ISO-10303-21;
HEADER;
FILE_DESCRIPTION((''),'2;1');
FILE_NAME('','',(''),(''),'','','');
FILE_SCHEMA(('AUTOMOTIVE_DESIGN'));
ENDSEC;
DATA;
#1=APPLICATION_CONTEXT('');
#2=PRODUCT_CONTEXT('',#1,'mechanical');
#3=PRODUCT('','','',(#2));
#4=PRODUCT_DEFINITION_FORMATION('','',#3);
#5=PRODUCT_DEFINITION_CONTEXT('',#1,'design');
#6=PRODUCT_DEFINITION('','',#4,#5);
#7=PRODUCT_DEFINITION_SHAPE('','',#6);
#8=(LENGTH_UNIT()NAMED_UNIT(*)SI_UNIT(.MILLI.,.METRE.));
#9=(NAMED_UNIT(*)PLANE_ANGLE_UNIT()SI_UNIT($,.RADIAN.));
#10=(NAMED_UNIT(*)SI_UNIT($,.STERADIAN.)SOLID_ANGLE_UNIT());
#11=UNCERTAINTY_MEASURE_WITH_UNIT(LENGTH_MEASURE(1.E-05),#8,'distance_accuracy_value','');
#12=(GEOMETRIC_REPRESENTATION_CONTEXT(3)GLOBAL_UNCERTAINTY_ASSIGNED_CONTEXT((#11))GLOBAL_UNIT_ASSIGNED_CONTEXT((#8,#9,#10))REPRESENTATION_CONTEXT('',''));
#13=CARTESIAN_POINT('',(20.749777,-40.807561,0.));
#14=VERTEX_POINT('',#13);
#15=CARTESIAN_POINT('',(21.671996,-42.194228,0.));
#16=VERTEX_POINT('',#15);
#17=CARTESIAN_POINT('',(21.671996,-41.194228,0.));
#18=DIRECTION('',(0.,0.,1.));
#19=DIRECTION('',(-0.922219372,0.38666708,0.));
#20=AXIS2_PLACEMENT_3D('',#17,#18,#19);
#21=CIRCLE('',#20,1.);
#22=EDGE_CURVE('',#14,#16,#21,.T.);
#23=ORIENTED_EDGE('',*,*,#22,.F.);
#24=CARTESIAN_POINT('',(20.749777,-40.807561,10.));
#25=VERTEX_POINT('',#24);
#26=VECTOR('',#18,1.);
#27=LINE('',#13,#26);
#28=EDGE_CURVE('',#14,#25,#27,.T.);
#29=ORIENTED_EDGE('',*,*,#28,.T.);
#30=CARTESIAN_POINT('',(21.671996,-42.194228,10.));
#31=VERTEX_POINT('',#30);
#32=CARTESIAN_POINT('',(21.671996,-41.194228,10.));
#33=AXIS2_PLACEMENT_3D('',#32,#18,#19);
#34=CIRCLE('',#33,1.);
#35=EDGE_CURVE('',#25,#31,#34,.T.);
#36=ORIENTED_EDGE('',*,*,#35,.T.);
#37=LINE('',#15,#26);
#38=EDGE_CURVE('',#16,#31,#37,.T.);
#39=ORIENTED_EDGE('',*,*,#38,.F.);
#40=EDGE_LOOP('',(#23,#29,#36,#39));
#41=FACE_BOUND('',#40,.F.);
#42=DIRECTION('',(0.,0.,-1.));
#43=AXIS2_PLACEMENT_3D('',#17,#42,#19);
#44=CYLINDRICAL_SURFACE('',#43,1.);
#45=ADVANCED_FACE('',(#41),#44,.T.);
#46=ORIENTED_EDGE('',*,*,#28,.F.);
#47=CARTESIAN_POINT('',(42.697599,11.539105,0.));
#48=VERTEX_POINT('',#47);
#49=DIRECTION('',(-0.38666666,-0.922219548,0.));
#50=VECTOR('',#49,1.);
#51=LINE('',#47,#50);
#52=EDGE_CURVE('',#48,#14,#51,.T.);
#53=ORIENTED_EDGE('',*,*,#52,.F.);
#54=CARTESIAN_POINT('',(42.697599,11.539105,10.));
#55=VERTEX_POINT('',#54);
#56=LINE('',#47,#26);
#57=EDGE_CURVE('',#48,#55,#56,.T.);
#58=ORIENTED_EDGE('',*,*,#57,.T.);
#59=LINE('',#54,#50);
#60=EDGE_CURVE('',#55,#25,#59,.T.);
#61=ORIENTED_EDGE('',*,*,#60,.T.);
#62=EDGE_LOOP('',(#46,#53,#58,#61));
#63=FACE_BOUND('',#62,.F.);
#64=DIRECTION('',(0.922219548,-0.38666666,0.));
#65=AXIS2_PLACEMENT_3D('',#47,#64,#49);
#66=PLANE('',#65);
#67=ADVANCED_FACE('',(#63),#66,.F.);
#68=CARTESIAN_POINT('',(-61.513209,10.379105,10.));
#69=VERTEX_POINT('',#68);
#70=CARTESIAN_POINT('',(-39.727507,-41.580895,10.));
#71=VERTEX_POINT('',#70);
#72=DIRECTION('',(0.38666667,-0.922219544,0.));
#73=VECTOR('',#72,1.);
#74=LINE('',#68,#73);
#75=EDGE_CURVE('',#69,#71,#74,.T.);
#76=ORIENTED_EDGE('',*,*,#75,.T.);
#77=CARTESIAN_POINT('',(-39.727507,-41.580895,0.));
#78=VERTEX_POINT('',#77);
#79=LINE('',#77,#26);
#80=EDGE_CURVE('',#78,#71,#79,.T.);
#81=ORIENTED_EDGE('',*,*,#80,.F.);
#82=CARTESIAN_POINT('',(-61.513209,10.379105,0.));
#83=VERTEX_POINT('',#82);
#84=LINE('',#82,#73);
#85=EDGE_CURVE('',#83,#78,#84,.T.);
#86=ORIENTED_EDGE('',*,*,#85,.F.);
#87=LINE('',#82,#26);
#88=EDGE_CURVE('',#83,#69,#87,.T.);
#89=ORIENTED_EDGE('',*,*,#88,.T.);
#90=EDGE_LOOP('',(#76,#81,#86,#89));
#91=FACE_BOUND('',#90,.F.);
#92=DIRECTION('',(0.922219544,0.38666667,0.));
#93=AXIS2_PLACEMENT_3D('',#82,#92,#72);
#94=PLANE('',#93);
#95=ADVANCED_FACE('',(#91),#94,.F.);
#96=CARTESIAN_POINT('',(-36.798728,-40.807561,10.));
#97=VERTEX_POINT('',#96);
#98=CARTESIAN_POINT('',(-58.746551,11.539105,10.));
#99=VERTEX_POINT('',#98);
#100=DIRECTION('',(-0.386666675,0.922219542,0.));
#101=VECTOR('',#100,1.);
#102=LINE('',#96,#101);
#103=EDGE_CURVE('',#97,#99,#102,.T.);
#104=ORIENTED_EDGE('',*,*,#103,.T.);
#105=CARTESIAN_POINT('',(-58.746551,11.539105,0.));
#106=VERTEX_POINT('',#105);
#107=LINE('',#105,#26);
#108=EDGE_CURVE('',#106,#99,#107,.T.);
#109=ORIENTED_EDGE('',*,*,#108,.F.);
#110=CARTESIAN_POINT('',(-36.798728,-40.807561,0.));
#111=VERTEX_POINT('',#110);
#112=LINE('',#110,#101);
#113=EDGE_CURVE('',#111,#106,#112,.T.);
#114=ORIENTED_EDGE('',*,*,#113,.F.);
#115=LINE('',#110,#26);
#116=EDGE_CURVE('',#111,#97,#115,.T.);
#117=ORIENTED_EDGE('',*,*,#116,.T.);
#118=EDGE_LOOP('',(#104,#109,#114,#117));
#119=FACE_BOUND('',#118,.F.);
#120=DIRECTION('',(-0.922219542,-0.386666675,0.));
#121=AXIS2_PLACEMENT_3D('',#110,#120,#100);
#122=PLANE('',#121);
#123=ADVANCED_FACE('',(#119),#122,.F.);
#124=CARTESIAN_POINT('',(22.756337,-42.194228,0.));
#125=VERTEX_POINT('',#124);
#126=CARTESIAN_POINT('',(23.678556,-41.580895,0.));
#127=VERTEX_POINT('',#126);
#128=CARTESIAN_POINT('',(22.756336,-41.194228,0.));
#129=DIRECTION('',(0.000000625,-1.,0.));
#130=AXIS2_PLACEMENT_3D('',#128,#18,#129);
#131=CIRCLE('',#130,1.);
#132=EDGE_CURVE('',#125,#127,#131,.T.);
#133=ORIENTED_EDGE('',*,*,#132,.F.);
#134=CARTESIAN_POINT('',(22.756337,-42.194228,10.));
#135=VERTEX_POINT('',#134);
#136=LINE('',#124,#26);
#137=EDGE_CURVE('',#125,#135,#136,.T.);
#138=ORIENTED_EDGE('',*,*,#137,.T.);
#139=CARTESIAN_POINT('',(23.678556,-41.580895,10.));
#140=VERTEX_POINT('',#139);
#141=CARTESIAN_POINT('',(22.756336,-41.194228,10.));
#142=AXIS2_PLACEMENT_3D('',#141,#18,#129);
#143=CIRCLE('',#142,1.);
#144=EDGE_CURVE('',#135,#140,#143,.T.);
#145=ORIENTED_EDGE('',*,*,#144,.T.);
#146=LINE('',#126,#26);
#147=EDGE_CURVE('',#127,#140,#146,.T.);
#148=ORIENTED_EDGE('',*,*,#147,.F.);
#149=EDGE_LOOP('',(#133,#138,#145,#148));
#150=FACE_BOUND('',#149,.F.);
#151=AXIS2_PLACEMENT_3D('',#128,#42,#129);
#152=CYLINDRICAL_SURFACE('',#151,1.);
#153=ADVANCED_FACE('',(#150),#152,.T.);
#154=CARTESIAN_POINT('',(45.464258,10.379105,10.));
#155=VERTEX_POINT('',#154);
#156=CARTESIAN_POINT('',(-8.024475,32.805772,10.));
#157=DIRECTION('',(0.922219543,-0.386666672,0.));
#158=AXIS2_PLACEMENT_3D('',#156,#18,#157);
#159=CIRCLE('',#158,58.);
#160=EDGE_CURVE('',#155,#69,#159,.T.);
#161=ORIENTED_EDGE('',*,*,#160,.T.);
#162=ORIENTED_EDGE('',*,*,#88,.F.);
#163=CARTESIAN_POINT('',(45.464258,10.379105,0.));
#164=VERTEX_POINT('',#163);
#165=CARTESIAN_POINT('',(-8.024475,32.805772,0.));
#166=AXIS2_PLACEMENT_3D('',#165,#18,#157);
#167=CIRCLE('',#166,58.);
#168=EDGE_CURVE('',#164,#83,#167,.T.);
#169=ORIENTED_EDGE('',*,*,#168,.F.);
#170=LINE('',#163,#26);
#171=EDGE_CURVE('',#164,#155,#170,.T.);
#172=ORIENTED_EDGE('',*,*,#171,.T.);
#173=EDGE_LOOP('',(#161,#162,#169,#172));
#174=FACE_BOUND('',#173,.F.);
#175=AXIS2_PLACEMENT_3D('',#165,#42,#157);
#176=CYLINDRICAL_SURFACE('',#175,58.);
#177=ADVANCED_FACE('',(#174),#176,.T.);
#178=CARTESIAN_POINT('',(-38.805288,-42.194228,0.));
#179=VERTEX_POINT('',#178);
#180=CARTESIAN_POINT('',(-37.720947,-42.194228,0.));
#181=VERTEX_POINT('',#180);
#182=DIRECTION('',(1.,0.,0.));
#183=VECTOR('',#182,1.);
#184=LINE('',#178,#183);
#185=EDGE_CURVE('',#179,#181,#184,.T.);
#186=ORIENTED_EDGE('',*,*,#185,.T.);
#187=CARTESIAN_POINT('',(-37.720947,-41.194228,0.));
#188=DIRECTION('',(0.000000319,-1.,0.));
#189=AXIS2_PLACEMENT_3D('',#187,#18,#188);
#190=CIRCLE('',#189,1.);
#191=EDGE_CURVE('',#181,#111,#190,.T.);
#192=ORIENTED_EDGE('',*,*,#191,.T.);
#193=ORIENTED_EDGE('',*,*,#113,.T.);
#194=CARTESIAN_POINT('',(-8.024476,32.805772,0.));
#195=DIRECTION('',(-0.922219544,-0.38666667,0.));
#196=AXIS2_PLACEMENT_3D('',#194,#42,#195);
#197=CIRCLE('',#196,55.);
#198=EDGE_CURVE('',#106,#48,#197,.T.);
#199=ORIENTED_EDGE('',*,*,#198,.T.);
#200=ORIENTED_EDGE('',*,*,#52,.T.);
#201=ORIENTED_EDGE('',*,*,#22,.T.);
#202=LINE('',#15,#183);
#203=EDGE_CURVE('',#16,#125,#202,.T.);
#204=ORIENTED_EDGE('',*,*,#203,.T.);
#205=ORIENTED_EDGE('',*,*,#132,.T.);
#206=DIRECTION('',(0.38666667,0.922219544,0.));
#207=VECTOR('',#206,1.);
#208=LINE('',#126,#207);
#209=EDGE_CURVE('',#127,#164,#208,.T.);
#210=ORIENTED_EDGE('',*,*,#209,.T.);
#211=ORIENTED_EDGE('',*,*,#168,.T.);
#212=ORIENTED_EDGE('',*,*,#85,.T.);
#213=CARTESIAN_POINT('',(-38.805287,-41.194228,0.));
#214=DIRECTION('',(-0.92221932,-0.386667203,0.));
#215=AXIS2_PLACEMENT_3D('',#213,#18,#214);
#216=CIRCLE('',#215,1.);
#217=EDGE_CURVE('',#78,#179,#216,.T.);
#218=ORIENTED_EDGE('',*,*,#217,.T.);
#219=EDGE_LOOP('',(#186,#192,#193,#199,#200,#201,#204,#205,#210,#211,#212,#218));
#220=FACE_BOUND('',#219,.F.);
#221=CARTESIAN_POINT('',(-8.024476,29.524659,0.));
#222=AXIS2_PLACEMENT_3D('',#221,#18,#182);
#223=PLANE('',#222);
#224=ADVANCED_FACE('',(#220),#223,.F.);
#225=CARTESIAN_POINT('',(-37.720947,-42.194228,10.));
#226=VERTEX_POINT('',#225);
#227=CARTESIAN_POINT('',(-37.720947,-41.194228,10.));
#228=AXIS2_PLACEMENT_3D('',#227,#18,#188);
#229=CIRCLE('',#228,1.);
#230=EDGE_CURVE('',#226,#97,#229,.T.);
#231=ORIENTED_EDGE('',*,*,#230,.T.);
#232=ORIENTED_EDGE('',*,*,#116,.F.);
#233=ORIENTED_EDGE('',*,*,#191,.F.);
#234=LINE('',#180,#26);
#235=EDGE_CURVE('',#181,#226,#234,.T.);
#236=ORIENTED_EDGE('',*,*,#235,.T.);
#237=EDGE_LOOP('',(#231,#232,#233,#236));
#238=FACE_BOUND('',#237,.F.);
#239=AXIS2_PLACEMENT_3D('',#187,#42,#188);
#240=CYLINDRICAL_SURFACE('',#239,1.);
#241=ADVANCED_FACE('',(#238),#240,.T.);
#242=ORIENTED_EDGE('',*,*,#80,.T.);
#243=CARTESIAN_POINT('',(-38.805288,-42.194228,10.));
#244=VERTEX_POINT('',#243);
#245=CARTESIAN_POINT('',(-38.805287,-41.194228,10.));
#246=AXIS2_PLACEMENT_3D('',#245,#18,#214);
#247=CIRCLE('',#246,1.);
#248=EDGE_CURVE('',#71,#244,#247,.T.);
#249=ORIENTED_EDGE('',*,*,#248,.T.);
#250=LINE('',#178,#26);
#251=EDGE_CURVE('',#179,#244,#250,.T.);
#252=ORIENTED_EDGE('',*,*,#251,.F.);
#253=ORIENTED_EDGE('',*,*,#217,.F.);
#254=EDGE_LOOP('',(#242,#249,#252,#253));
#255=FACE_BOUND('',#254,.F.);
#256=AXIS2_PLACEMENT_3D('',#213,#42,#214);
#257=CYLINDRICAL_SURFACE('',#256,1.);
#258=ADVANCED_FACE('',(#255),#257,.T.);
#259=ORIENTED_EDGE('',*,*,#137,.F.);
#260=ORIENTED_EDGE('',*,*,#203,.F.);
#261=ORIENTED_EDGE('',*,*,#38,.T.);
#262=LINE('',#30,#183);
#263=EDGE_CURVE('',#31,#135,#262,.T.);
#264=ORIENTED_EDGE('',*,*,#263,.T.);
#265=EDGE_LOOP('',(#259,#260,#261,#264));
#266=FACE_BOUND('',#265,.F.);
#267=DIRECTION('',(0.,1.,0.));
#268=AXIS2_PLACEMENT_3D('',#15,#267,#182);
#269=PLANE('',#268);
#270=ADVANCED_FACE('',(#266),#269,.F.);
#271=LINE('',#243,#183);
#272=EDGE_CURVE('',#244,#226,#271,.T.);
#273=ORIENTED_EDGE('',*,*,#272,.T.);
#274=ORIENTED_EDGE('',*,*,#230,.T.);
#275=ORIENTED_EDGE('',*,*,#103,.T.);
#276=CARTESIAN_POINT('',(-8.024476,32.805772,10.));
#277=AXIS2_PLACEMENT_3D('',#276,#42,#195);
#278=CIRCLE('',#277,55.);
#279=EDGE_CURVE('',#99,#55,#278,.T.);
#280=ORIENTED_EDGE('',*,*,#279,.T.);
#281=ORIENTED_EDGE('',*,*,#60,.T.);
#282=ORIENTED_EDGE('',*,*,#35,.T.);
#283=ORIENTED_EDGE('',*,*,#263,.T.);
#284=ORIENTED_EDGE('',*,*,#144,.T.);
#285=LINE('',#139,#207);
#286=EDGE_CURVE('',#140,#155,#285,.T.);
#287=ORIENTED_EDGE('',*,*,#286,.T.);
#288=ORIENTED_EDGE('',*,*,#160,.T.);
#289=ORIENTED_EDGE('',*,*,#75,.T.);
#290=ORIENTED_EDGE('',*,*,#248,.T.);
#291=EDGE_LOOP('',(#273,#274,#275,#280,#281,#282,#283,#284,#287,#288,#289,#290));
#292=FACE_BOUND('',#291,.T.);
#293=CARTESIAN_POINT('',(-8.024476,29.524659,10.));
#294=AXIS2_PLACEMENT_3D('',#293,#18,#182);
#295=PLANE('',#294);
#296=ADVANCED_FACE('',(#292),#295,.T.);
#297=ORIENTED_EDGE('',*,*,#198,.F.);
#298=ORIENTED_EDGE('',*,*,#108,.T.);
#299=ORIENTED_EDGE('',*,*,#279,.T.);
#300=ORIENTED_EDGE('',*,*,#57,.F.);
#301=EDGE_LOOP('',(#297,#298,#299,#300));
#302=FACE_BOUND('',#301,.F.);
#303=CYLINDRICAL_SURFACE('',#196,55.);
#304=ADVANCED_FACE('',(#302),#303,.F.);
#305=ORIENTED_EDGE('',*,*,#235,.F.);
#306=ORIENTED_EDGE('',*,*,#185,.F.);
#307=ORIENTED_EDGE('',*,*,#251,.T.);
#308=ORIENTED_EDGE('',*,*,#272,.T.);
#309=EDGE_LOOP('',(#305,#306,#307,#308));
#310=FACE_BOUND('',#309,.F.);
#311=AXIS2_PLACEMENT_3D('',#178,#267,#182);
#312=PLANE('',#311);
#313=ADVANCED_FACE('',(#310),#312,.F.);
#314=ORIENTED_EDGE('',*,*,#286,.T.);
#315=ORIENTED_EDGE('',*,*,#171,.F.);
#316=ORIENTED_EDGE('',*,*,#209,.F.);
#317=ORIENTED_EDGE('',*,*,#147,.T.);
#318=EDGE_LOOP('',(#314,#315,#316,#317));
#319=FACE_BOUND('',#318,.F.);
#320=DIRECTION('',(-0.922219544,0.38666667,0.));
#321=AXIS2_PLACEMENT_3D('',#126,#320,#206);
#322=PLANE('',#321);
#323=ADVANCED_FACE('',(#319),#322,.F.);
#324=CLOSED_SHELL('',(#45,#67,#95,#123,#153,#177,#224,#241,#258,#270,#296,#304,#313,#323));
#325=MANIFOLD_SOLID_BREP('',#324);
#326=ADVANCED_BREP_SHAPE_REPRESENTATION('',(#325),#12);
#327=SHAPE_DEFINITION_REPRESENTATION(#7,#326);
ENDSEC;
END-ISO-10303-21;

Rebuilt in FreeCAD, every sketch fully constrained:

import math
import FreeCAD as App
import Part
import Sketcher
from FreeCAD import Vector

doc = App.newDocument("Part")
body = doc.addObject("PartDesign::Body", "Body")

# Sketch on XY plane
sketch1 = body.newObject("Sketcher::SketchObject", "Sketch")
sketch1.AttachmentSupport = (doc.getObject("XY_Plane"), [""])
sketch1.MapMode = "FlatFace"
sketch1.addGeometry(Part.ArcOfCircle(Part.Circle(Vector(-8, 32.8, 0), Vector(0, 0, 1), 55), math.radians(-23), math.radians(203)), False)
sketch1.addGeometry(Part.LineSegment(Vector(42.7, 11.5, 0), Vector(20.7, -40.8, 0)), False)
sketch1.addGeometry(Part.ArcOfCircle(Part.Circle(Vector(21.7, -41.2, 0), Vector(0, 0, 1), 1), math.radians(157), math.radians(270)), False)
sketch1.addGeometry(Part.LineSegment(Vector(21.7, -42.2, 0), Vector(22.8, -42.2, 0)), False)
sketch1.addGeometry(Part.ArcOfCircle(Part.Circle(Vector(22.8, -41.2, 0), Vector(0, 0, 1), 1), math.radians(-90), math.radians(-23)), False)
sketch1.addGeometry(Part.LineSegment(Vector(23.7, -41.6, 0), Vector(45.5, 10.4, 0)), False)
sketch1.addGeometry(Part.ArcOfCircle(Part.Circle(Vector(-8, 32.8, 0), Vector(0, 0, 1), 58), math.radians(-23), math.radians(203)), False)
sketch1.addGeometry(Part.LineSegment(Vector(-61.5, 10.4, 0), Vector(-39.7, -41.6, 0)), False)
sketch1.addGeometry(Part.ArcOfCircle(Part.Circle(Vector(-38.8, -41.2, 0), Vector(0, 0, 1), 1), math.radians(-157), math.radians(-90)), False)
sketch1.addGeometry(Part.LineSegment(Vector(-38.8, -42.2, 0), Vector(-37.7, -42.2, 0)), False)
sketch1.addGeometry(Part.ArcOfCircle(Part.Circle(Vector(-37.7, -41.2, 0), Vector(0, 0, 1), 1), math.radians(-90), math.radians(23)), False)
sketch1.addGeometry(Part.LineSegment(Vector(-36.8, -40.8, 0), Vector(-58.7, 11.5, 0)), False)
sketch1.addConstraint(Sketcher.Constraint("Tangent", 0, 1, 1, 1))
sketch1.addConstraint(Sketcher.Constraint("Tangent", 1, 2, 2, 1))
sketch1.addConstraint(Sketcher.Constraint("Tangent", 2, 2, 3, 1))
sketch1.addConstraint(Sketcher.Constraint("Tangent", 3, 2, 4, 1))
sketch1.addConstraint(Sketcher.Constraint("Tangent", 4, 2, 5, 1))
sketch1.addConstraint(Sketcher.Constraint("Tangent", 5, 2, 6, 1))
sketch1.addConstraint(Sketcher.Constraint("Tangent", 6, 2, 7, 1))
sketch1.addConstraint(Sketcher.Constraint("Tangent", 7, 2, 8, 1))
sketch1.addConstraint(Sketcher.Constraint("Tangent", 8, 2, 9, 1))
sketch1.addConstraint(Sketcher.Constraint("Tangent", 9, 2, 10, 1))
sketch1.addConstraint(Sketcher.Constraint("Tangent", 10, 2, 11, 1))
sketch1.addConstraint(Sketcher.Constraint("Tangent", 11, 2, 0, 2))
sketch1.addConstraint(Sketcher.Constraint("Horizontal", 3))
sketch1.addConstraint(Sketcher.Constraint("Horizontal", 9))
sketch1.addConstraint(Sketcher.Constraint("Coincident", 6, 3, 0, 3))
sketch1.addConstraint(Sketcher.Constraint("Equal", 2, 4))
sketch1.addConstraint(Sketcher.Constraint("Equal", 4, 8))
sketch1.addConstraint(Sketcher.Constraint("Equal", 8, 10))
sketch1.addConstraint(Sketcher.Constraint("Parallel", 1, 5))
sketch1.addConstraint(Sketcher.Constraint("Parallel", 7, 11))
sketch1.addConstraint(Sketcher.Constraint("Horizontal", 4, 3, 8, 3))
sketch1.addConstraint(Sketcher.Constraint("Horizontal", 5, 2, 6, 2))
sketch1.addConstraint(Sketcher.Constraint("Radius", 0, 55.0))
sketch1.addConstraint(Sketcher.Constraint("Radius", 2, 1.0))
sketch1.addConstraint(Sketcher.Constraint("Radius", 6, 58.0))
sketch1.addConstraint(Sketcher.Constraint("DistanceY", 2, 3, 0, 3, 74.0))
sketch1.addConstraint(Sketcher.Constraint("DistanceY", 4, 2, 5, 2, 51.96))
sketch1.addConstraint(Sketcher.Constraint("DistanceX", -1, 1, 0, 1, 42.697599))
sketch1.addConstraint(Sketcher.Constraint("DistanceY", -1, 1, 0, 3, 32.805772))
pad1 = body.newObject("PartDesign::Pad", "Pad")
pad1.Profile = sketch1
pad1.Length = 10

doc.recompute()
